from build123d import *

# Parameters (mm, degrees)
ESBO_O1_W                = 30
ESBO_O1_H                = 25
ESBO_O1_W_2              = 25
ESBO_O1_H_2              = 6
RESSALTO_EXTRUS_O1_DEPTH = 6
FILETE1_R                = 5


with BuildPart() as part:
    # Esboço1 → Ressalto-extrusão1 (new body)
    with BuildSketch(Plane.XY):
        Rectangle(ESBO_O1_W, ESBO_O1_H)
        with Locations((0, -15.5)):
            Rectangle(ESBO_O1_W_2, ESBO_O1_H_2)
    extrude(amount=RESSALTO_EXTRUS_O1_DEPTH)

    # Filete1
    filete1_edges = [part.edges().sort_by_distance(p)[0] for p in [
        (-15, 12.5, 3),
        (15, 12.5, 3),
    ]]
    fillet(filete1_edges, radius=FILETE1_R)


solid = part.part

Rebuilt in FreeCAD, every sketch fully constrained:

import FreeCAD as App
import Part
import Sketcher
Q = App.Units.Quantity


def edges_at(feature, points):
    """Names of the edges that pass closest to the given points."""
    edges = feature.Shape.Edges
    near = lambda p: min(range(len(edges)), key=lambda i: edges[i].distToShape(Part.Vertex(*p))[0])
    return sorted({f"Edge{near(p) + 1}" for p in points})

doc = App.newDocument("Part")
params = doc.addObject("Spreadsheet::Sheet", "Params")
for row, (alias, value) in enumerate([
    ("sketch1_width", "25 mm"),
    ("sketch1_width2", "30 mm"),
    ("sketch1_height", "6 mm"),
    ("pad1_length", "6 mm"),
    ("fillet_radius", "5 mm"),
], start=1):
    params.set(f"A{row}", alias)
    params.set(f"B{row}", "=" + value)
    params.setAlias(f"B{row}", alias)

body = doc.addObject("PartDesign::Body", "Body")

sketch1 = body.newObject("Sketcher::SketchObject", "Sketch")
sketch1.AttachmentSupport = (doc.getObject("XY_Plane"), [""])
sketch1.MapMode = "FlatFace"
sketch1.addGeometry([
    Part.LineSegment(App.Vector(-15, 12.5, 0), App.Vector(-15, -12.5, 0)),
    Part.LineSegment(App.Vector(-15, -12.5, 0), App.Vector(-12.5, -12.5, 0)),
    Part.LineSegment(App.Vector(-12.5, -12.5, 0), App.Vector(-12.5, -18.5, 0)),
    Part.LineSegment(App.Vector(-12.5, -18.5, 0), App.Vector(12.5, -18.5, 0)),
    Part.LineSegment(App.Vector(12.5, -18.5, 0), App.Vector(12.5, -12.5, 0)),
    Part.LineSegment(App.Vector(12.5, -12.5, 0), App.Vector(15, -12.5, 0)),
    Part.LineSegment(App.Vector(15, -12.5, 0), App.Vector(15, 12.5, 0)),
    Part.LineSegment(App.Vector(15, 12.5, 0), App.Vector(-15, 12.5, 0)),
], False)
sketch1.addConstraint([
    Sketcher.Constraint("Coincident", 0, 2, 1, 1),
    Sketcher.Constraint("Coincident", 1, 2, 2, 1),
    Sketcher.Constraint("Coincident", 2, 2, 3, 1),
    Sketcher.Constraint("Coincident", 3, 2, 4, 1),
    Sketcher.Constraint("Coincident", 4, 2, 5, 1),
    Sketcher.Constraint("Coincident", 5, 2, 6, 1),
    Sketcher.Constraint("Coincident", 6, 2, 7, 1),
    Sketcher.Constraint("Coincident", 7, 2, 0, 1),
    Sketcher.Constraint("Vertical", 0),
    Sketcher.Constraint("Horizontal", 1),
    Sketcher.Constraint("Vertical", 2),
    Sketcher.Constraint("Horizontal", 3),
    Sketcher.Constraint("Vertical", 4),
    Sketcher.Constraint("Horizontal", 5),
    Sketcher.Constraint("Vertical", 6),
    Sketcher.Constraint("Horizontal", 7),
    Sketcher.Constraint("Symmetric", 0, 2, 6, 2, -1, 1),
    Sketcher.Constraint("Symmetric", 1, 2, 4, 2, -2),
    Sketcher.Constraint("Equal", 3, 0),
    Sketcher.Constraint("DistanceX", 3, 1, 3, 2, Q("25 mm")),
    Sketcher.Constraint("DistanceX", 7, 2, 7, 1, Q("30 mm")),
    Sketcher.Constraint("DistanceY", 2, 2, 2, 1, Q("6 mm")),
])
sketch1.setExpression("Constraints[19]", "Params.sketch1_width")
sketch1.setExpression("Constraints[20]", "Params.sketch1_width2")
sketch1.setExpression("Constraints[21]", "Params.sketch1_height")
pad1 = body.newObject("PartDesign::Pad", "Pad")
pad1.Profile = sketch1
pad1.setExpression("Length", "Params.pad1_length")
doc.recompute()

fillet = body.newObject("PartDesign::Fillet", "Fillet")
fillet.Base = (pad1, edges_at(pad1, [(-15, 12.5, 3), (15, 12.5, 3)]))
fillet.setExpression("Radius", "Params.fillet_radius")

doc.recompute()
